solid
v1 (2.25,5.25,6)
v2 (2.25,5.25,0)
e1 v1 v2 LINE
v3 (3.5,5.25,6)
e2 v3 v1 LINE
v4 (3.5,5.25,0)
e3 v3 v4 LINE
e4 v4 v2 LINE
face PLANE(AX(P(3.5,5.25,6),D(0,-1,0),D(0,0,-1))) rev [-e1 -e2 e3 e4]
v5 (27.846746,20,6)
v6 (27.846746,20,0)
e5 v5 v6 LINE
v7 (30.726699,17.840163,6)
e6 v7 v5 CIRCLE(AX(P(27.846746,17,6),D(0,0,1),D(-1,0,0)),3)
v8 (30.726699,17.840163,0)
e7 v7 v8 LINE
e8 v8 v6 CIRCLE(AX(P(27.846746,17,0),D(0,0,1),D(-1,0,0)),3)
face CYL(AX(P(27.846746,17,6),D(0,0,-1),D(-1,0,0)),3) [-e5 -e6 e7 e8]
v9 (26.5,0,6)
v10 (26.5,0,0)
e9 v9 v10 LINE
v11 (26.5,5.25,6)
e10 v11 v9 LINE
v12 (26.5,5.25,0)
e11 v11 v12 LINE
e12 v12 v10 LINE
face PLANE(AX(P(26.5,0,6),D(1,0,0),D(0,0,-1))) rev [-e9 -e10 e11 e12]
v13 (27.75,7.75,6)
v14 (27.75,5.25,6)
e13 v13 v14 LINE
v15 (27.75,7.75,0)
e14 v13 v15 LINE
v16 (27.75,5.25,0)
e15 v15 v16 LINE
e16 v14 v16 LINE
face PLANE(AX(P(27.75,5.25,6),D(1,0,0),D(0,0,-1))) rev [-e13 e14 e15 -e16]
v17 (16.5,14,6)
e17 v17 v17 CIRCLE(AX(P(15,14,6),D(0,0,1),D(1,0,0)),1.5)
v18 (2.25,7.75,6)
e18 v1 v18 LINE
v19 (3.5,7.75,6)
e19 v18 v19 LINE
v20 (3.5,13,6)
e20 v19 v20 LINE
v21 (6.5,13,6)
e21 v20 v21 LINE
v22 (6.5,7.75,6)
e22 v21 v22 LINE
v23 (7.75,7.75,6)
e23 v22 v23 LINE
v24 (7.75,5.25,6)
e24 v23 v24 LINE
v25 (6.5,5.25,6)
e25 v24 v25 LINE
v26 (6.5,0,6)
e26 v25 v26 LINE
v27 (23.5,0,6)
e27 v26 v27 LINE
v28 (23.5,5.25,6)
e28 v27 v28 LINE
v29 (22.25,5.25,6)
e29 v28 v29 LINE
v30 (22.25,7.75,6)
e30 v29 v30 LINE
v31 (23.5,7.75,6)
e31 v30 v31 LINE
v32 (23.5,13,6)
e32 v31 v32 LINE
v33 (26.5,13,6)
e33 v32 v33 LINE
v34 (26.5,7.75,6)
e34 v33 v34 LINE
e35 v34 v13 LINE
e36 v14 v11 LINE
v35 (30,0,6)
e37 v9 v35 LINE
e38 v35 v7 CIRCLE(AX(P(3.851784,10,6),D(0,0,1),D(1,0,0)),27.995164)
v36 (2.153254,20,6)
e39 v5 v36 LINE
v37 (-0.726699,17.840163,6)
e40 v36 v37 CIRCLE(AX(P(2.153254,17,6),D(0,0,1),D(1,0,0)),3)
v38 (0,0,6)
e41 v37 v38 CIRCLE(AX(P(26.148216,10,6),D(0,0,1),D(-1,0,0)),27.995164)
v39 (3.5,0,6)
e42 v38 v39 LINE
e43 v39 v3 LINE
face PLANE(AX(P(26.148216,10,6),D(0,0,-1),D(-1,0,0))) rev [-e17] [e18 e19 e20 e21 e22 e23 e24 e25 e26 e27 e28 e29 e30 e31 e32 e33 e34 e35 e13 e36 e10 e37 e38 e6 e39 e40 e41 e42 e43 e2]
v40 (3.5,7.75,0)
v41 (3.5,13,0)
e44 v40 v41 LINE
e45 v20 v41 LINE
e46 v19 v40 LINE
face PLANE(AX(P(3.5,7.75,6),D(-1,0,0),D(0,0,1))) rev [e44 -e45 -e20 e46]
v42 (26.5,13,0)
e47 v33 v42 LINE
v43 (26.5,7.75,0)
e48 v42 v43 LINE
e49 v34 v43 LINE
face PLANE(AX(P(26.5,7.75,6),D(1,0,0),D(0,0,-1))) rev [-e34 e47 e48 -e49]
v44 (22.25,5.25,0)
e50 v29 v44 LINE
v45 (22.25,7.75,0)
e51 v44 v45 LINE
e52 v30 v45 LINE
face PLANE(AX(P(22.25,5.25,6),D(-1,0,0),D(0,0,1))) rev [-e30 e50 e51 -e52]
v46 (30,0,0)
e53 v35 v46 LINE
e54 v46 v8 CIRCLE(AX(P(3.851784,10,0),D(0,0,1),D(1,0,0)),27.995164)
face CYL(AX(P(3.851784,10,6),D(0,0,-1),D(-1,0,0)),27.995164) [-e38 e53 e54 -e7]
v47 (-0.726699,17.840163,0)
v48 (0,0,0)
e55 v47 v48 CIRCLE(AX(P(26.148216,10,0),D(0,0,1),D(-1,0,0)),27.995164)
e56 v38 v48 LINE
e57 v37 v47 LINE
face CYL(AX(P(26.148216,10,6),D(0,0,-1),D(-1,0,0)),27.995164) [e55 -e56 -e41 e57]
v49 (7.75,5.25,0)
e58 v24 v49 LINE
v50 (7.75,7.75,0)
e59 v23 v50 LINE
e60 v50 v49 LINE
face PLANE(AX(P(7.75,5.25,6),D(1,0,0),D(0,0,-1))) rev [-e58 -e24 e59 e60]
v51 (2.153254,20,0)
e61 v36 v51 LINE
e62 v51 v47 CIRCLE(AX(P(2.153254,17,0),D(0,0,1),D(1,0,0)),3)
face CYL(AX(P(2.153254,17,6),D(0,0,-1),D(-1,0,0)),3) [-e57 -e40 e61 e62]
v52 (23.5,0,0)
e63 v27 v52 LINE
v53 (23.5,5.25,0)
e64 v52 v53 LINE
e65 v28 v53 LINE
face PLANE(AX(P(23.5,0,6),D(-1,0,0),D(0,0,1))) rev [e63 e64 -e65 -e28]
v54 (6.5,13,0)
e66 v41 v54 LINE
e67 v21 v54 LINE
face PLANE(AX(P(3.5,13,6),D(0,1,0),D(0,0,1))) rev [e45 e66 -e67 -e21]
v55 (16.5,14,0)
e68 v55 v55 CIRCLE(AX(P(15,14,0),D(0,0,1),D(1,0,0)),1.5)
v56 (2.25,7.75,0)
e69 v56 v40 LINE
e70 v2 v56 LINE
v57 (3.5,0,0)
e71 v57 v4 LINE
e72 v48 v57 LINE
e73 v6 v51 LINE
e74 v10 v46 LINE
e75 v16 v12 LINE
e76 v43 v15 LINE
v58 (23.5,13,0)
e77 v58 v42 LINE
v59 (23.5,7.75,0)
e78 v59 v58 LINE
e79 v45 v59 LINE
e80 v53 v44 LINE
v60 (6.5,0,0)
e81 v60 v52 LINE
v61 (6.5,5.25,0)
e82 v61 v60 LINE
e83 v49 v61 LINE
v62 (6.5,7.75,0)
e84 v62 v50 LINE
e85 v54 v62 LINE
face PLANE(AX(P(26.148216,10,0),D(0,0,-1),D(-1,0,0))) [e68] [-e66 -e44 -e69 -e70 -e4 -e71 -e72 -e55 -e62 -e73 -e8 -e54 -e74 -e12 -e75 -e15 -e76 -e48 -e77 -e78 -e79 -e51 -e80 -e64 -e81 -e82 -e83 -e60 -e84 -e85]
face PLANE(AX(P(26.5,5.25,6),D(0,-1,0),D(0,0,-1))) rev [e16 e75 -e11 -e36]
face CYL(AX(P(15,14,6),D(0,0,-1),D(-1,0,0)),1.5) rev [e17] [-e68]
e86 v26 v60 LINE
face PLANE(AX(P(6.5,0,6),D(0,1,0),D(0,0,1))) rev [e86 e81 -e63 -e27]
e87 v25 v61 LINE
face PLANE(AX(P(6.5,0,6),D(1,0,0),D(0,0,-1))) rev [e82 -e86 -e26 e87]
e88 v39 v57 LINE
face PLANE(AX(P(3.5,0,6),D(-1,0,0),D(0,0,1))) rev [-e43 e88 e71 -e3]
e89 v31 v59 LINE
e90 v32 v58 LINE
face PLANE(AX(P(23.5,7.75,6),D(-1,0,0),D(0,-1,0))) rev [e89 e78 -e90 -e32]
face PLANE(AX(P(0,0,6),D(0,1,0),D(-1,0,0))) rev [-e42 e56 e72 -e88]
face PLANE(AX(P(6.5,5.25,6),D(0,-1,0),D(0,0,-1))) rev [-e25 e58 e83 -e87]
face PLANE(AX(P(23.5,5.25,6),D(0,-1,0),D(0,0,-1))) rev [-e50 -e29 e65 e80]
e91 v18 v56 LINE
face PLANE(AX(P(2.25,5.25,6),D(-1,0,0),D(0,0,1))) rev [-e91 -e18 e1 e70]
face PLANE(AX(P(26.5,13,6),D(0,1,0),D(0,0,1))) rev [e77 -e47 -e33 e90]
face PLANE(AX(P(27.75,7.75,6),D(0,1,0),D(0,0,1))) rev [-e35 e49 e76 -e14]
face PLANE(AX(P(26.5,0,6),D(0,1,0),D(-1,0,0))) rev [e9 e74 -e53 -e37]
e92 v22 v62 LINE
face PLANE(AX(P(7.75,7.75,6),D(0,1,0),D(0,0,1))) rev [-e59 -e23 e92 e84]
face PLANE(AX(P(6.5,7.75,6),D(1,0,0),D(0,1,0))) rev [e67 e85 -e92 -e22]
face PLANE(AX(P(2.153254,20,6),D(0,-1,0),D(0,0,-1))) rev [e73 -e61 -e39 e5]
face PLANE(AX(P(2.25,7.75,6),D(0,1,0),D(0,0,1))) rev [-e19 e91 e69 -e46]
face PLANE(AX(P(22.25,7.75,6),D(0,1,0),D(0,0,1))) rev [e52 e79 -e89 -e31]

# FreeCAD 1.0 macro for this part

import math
import FreeCAD as App
import Part
import Sketcher

V = App.Vector
Q = App.Units.Quantity

doc = App.newDocument("Part")
body = doc.addObject("PartDesign::Body", "Body")

sketch1 = body.newObject("Sketcher::SketchObject", "Sketch")
sketch1.AttachmentSupport = (doc.getObject("XY_Plane"), [""])
sketch1.MapMode = "FlatFace"
sketch1.addGeometry([
    Part.LineSegment(V(0, 0, 0), V(3.5, 0, 0)),
    Part.LineSegment(V(3.5, 0, 0), V(3.5, 5.25, 0)),
    Part.LineSegment(V(3.5, 5.25, 0), V(2.25, 5.25, 0)),
    Part.LineSegment(V(2.25, 5.25, 0), V(2.25, 7.75, 0)),
    Part.LineSegment(V(2.25, 7.75, 0), V(3.5, 7.75, 0)),
    Part.LineSegment(V(3.5, 7.75, 0), V(3.5, 13, 0)),
    Part.LineSegment(V(3.5, 13, 0), V(6.5, 13, 0)),
    Part.LineSegment(V(6.5, 13, 0), V(6.5, 7.75, 0)),
    Part.LineSegment(V(6.5, 7.75, 0), V(7.75, 7.75, 0)),
    Part.LineSegment(V(7.75, 7.75, 0), V(7.75, 5.25, 0)),
    Part.LineSegment(V(7.75, 5.25, 0), V(6.5, 5.25, 0)),
    Part.LineSegment(V(6.5, 5.25, 0), V(6.5, 0, 0)),
    Part.LineSegment(V(6.5, 0, 0), V(23.5, 0, 0)),
    Part.LineSegment(V(23.5, 0, 0), V(23.5, 5.25, 0)),
    Part.LineSegment(V(23.5, 5.25, 0), V(22.25, 5.25, 0)),
    Part.LineSegment(V(22.25, 5.25, 0), V(22.25, 7.75, 0)),
    Part.LineSegment(V(22.25, 7.75, 0), V(23.5, 7.75, 0)),
    Part.LineSegment(V(23.5, 7.75, 0), V(23.5, 13, 0)),
    Part.LineSegment(V(23.5, 13, 0), V(26.5, 13, 0)),
    Part.LineSegment(V(26.5, 13, 0), V(26.5, 7.75, 0)),
    Part.LineSegment(V(26.5, 7.75, 0), V(27.75, 7.75, 0)),
    Part.LineSegment(V(27.75, 7.75, 0), V(27.75, 5.25, 0)),
    Part.LineSegment(V(27.75, 5.25, 0), V(26.5, 5.25, 0)),
    Part.LineSegment(V(26.5, 5.25, 0), V(26.5, 0, 0)),
    Part.LineSegment(V(26.5, 0, 0), V(30, 0, 0)),
    Part.ArcOfCircle(Part.Circle(V(3.851784, 10, 0), V(0, 0, 1), 27.995164), math.radians(-20.928617), math.radians(16.263438)),
    Part.ArcOfCircle(Part.Circle(V(27.846746, 17, 0), V(0, 0, 1), 3), math.radians(16.263438), math.radians(90)),
    Part.LineSegment(V(27.846746, 20, 0), V(2.153254, 20, 0)),
    Part.ArcOfCircle(Part.Circle(V(2.153254, 17, 0), V(0, 0, 1), 3), math.radians(90), math.radians(163.736562)),
    Part.ArcOfCircle(Part.Circle(V(26.148216, 10, 0), V(0, 0, 1), 27.995164), math.radians(163.736562), math.radians(200.928617)),
    Part.Circle(V(15, 14, 0), V(0, 0, 1), 1.5),
], False)
sketch1.addConstraint([
    Sketcher.Constraint("Coincident", 0, 2, 1, 1),
    Sketcher.Constraint("Coincident", 1, 2, 2, 1),
    Sketcher.Constraint("Coincident", 2, 2, 3, 1),
    Sketcher.Constraint("Coincident", 3, 2, 4, 1),
    Sketcher.Constraint("Coincident", 4, 2, 5, 1),
    Sketcher.Constraint("Coincident", 5, 2, 6, 1),
    Sketcher.Constraint("Coincident", 6, 2, 7, 1),
    Sketcher.Constraint("Coincident", 7, 2, 8, 1),
    Sketcher.Constraint("Coincident", 8, 2, 9, 1),
    Sketcher.Constraint("Coincident", 9, 2, 10, 1),
    Sketcher.Constraint("Coincident", 10, 2, 11, 1),
    Sketcher.Constraint("Coincident", 11, 2, 12, 1),
    Sketcher.Constraint("Coincident", 12, 2, 13, 1),
    Sketcher.Constraint("Coincident", 13, 2, 14, 1),
    Sketcher.Constraint("Coincident", 14, 2, 15, 1),
    Sketcher.Constraint("Coincident", 15, 2, 16, 1),
    Sketcher.Constraint("Coincident", 16, 2, 17, 1),
    Sketcher.Constraint("Coincident", 17, 2, 18, 1),
    Sketcher.Constraint("Coincident", 18, 2, 19, 1),
    Sketcher.Constraint("Coincident", 19, 2, 20, 1),
    Sketcher.Constraint("Coincident", 20, 2, 21, 1),
    Sketcher.Constraint("Coincident", 21, 2, 22, 1),
    Sketcher.Constraint("Coincident", 22, 2, 23, 1),
    Sketcher.Constraint("Coincident", 23, 2, 24, 1),
    Sketcher.Constraint("Coincident", 24, 2, 25, 1),
    Sketcher.Constraint("Tangent", 25, 2, 26, 1),
    Sketcher.Constraint("Tangent", 26, 2, 27, 1),
    Sketcher.Constraint("Tangent", 27, 2, 28, 1),
    Sketcher.Constraint("Tangent", 28, 2, 29, 1),
    Sketcher.Constraint("Coincident", 29, 2, 0, 1),
    Sketcher.Constraint("Horizontal", 0),
    Sketcher.Constraint("Vertical", 1),
    Sketcher.Constraint("Horizontal", 2),
    Sketcher.Constraint("Vertical", 3),
    Sketcher.Constraint("Horizontal", 4),
    Sketcher.Constraint("Vertical", 5),
    Sketcher.Constraint("Horizontal", 6),
    Sketcher.Constraint("Vertical", 7),
    Sketcher.Constraint("Horizontal", 8),
    Sketcher.Constraint("Vertical", 9),
    Sketcher.Constraint("Horizontal", 10),
    Sketcher.Constraint("Vertical", 11),
    Sketcher.Constraint("Horizontal", 12),
    Sketcher.Constraint("Vertical", 13),
    Sketcher.Constraint("Horizontal", 14),
    Sketcher.Constraint("Vertical", 15),
    Sketcher.Constraint("Horizontal", 16),
    Sketcher.Constraint("Vertical", 17),
    Sketcher.Constraint("Horizontal", 18),
    Sketcher.Constraint("Vertical", 19),
    Sketcher.Constraint("Horizontal", 20),
    Sketcher.Constraint("Vertical", 21),
    Sketcher.Constraint("Horizontal", 22),
    Sketcher.Constraint("Vertical", 23),
    Sketcher.Constraint("Horizontal", 24),
    Sketcher.Constraint("Horizontal", 27),
    Sketcher.Constraint("Coincident", 29, 2, -1, 1),
    Sketcher.Constraint("Equal", 26, 28),
    Sketcher.Constraint("Equal", 25, 29),
    Sketcher.Constraint("PointOnObject", 11, 2, -1),
    Sketcher.Constraint("PointOnObject", 23, 2, -1),
    Sketcher.Constraint("Horizontal", 25, 3, 29, 3),
    Sketcher.Constraint("Horizontal", 4, 2, 7, 2),
    Sketcher.Constraint("Horizontal", 2, 2, 9, 2),
    Sketcher.Constraint("Horizontal", 10, 2, 13, 2),
    Sketcher.Constraint("Horizontal", 8, 2, 15, 2),
    Sketcher.Constraint("Horizontal", 6, 2, 17, 2),
    Sketcher.Constraint("Horizontal", 16, 2, 19, 2),
    Sketcher.Constraint("Horizontal", 14, 2, 21, 2),
    Sketcher.Constraint("Vertical", 1, 2, 4, 2),
    Sketcher.Constraint("Vertical", 7, 2, 10, 2),
    Sketcher.Constraint("Vertical", 13, 2, 16, 2),
    Sketcher.Constraint("Vertical", 19, 2, 22, 2),
    Sketcher.Constraint("Equal", 4, 8),
    Sketcher.Constraint("Equal", 10, 14),
    Sketcher.Constraint("Equal", 6, 18),
    Sketcher.Constraint("Equal", 16, 20),
    Sketcher.Constraint("Equal", 0, 24),
    Sketcher.Constraint("Equal", 1, 5),
    Sketcher.Constraint("Diameter", 30, Q("3 mm")),
    Sketcher.Constraint("Radius", 26, Q("3 mm")),
    Sketcher.Constraint("DistanceX", 6, 1, 6, 2, Q("3 mm")),
    Sketcher.Constraint("DistanceX", 12, 1, 12, 2, Q("17 mm")),
    Sketcher.Constraint("DistanceX", 0, 1, 0, 2, Q("3.5 mm")),
    Sketcher.Constraint("DistanceY", 3, 1, 3, 2, Q("2.5 mm")),
    Sketcher.Constraint("DistanceY", -1, 1, 25, 3, Q("10 mm")),
    Sketcher.Constraint("DistanceY", -1, 1, 26, 3, Q("17 mm")),
    Sketcher.Constraint("DistanceX", -1, 1, 30, 3, Q("15 mm")),
    Sketcher.Constraint("DistanceY", -1, 1, 30, 3, Q("14 mm")),
    Sketcher.Constraint("DistanceY", -1, 1, 5, 2, Q("13 mm")),
    Sketcher.Constraint("DistanceX", 2, 2, 2, 1, Q("1.25 mm")),
    Sketcher.Constraint("Radius", 25, Q("27.995164 mm")),
])
pad1 = body.newObject("PartDesign::Pad", "Pad")
pad1.Profile = sketch1
pad1.Length = 6

doc.recompute()
